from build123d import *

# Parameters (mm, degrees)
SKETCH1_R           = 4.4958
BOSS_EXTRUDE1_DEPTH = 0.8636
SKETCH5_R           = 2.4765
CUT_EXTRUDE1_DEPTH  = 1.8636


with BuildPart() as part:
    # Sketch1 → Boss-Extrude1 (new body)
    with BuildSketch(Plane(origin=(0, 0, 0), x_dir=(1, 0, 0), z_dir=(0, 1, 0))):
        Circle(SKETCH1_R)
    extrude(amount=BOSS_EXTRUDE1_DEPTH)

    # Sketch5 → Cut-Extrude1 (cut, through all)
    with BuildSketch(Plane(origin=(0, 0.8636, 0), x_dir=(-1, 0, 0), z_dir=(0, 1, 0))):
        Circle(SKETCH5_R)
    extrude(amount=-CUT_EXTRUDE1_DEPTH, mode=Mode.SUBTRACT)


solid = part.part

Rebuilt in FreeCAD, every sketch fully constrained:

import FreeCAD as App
import Part
import Sketcher

V = App.Vector
Q = App.Units.Quantity

doc = App.newDocument("Part")
params = doc.addObject("Spreadsheet::Sheet", "Params")
for row, (alias, value) in enumerate([
    ("sketch1_diameter", "0.354 in"),
    ("pad1_length", "0.034 in"),
    ("sketch2_diameter", "0.195 in"),
], start=1):
    params.set(f"A{row}", alias)
    params.set(f"B{row}", "=" + value)
    params.setAlias(f"B{row}", alias)

body = doc.addObject("PartDesign::Body", "Body")

# Sketch on XZ plane
sketch1 = doc.addObject("Sketcher::SketchObject", "Sketch")
body.addObject(sketch1)
sketch1.AttachmentSupport = (doc.XZ_Plane, [""])
sketch1.MapMode = "FlatFace"
sketch1.addGeometry(Part.Circle(V(0, 0, 0), V(0, 0, 1), 4.5), False)
sketch1.addConstraint([
    Sketcher.Constraint("Coincident", 0, 3, -1, 1),
    Sketcher.Constraint("Diameter", 0, Q("0.354 in")),
])
sketch1.setExpression("Constraints[1]", "Params.sketch1_diameter")
pad1 = doc.addObject("PartDesign::Pad", "Pad")
body.addObject(pad1)
pad1.Profile = sketch1
pad1.setExpression("Length", "Params.pad1_length")
pad1.Reversed = True

# Sketch on XZ plane
sketch2 = doc.addObject("Sketcher::SketchObject", "Sketch001")
body.addObject(sketch2)
sketch2.AttachmentSupport = (doc.XZ_Plane, [""])
sketch2.MapMode = "FlatFace"
sketch2.AttachmentOffset = App.Placement(V(0, 0, -0.034 * 25.4), App.Rotation())
sketch2.addGeometry(Part.Circle(V(0, 0, 0), V(0, 0, 1), 2.5), False)
sketch2.addConstraint([
    Sketcher.Constraint("Coincident", 0, 3, -1, 1),
    Sketcher.Constraint("Diameter", 0, Q("0.195 in")),
])
sketch2.setExpression("Constraints[1]", "Params.sketch2_diameter")
pocket1 = doc.addObject("PartDesign::Pocket", "Pocket")
body.addObject(pocket1)
pocket1.Profile = sketch2
pocket1.Type = "ThroughAll"
pocket1.Reversed = True

doc.recompute()
